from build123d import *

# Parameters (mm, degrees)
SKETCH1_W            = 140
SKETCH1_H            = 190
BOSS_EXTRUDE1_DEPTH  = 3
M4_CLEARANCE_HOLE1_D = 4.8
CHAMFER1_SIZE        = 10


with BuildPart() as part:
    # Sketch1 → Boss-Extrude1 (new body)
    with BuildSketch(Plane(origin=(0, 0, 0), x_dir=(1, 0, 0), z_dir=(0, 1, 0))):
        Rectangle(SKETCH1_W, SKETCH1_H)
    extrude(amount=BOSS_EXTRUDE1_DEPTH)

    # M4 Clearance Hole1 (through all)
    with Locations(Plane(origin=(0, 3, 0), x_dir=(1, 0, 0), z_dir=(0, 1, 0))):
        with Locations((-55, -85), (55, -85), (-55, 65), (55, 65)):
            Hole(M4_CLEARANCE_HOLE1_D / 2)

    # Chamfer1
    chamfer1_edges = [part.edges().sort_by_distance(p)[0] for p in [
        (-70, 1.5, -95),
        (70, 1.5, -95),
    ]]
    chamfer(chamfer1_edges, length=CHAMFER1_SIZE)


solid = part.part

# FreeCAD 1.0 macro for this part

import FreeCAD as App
import Part
import Sketcher

V = App.Vector


def edges_at(feature, points):
    """Names of the edges that pass closest to the given points."""
    edges = feature.Shape.Edges
    near = lambda p: min(range(len(edges)), key=lambda i: edges[i].distToShape(Part.Vertex(*p))[0])
    return sorted({f"Edge{near(p) + 1}" for p in points})

doc = App.newDocument("Part")
params = doc.addObject("Spreadsheet::Sheet", "Params")
for row, (alias, value) in enumerate([
    ("sketch1_width", "140 mm"),
    ("sketch1_height", "190 mm"),
    ("pad1_length", "3 mm"),
    ("sketch2_diameter", "4.8 mm"),
    ("hole_diameter", "4.8 mm"),
    ("chamfer_size", "10 mm"),
], start=1):
    params.set(f"A{row}", alias)
    params.set(f"B{row}", "=" + value)
    params.setAlias(f"B{row}", alias)

body = doc.addObject("PartDesign::Body", "Body")

# Sketch on XZ plane
sketch1 = doc.addObject("Sketcher::SketchObject", "Sketch")
body.addObject(sketch1)
sketch1.AttachmentSupport = (doc.XZ_Plane, [""])
sketch1.MapMode = "FlatFace"
sketch1.addGeometry(Part.LineSegment(V(-70, -95, 0), V(-70, 95, 0)), False)
sketch1.addGeometry(Part.LineSegment(V(-70, 95, 0), V(70, 95, 0)), False)
sketch1.addGeometry(Part.LineSegment(V(70, 95, 0), V(70, -95, 0)), False)
sketch1.addGeometry(Part.LineSegment(V(70, -95, 0), V(-70, -95, 0)), False)
sketch1.addConstraint(Sketcher.Constraint("Coincident", 0, 2, 1, 1))
sketch1.addConstraint(Sketcher.Constraint("Coincident", 1, 2, 2, 1))
sketch1.addConstraint(Sketcher.Constraint("Coincident", 2, 2, 3, 1))
sketch1.addConstraint(Sketcher.Constraint("Coincident", 3, 2, 0, 1))
sketch1.addConstraint(Sketcher.Constraint("Vertical", 0))
sketch1.addConstraint(Sketcher.Constraint("Horizontal", 1))
sketch1.addConstraint(Sketcher.Constraint("Vertical", 2))
sketch1.addConstraint(Sketcher.Constraint("Horizontal", 3))
sketch1.addConstraint(Sketcher.Constraint("Symmetric", 0, 2, 2, 2, -1, 1))
sketch1.addConstraint(Sketcher.Constraint("DistanceX", 1, 1, 1, 2, 140.0))
sketch1.addConstraint(Sketcher.Constraint("DistanceY", 0, 1, 0, 2, 190.0))
sketch1.setExpression("Constraints[9]", "Params.sketch1_width")
sketch1.setExpression("Constraints[10]", "Params.sketch1_height")
pad1 = doc.addObject("PartDesign::Pad", "Pad")
body.addObject(pad1)
pad1.Profile = sketch1
pad1.setExpression("Length", "Params.pad1_length")
pad1.Reversed = True

# Sketch on XZ plane
sketch2 = doc.addObject("Sketcher::SketchObject", "Sketch001")
body.addObject(sketch2)
sketch2.AttachmentSupport = (doc.XZ_Plane, [""])
sketch2.MapMode = "FlatFace"
sketch2.AttachmentOffset = App.Placement(V(0, 0, -3), App.Rotation())
sketch2.addGeometry(Part.Circle(V(-55, 85, 0), V(0, 0, 1), 2.4), False)
sketch2.addGeometry(Part.Circle(V(55, 85, 0), V(0, 0, 1), 2.4), False)
sketch2.addGeometry(Part.Circle(V(-55, -65, 0), V(0, 0, 1), 2.4), False)
sketch2.addGeometry(Part.Circle(V(55, -65, 0), V(0, 0, 1), 2.4), False)
sketch2.addConstraint(Sketcher.Constraint("Equal", 0, 1))
sketch2.addConstraint(Sketcher.Constraint("Equal", 1, 2))
sketch2.addConstraint(Sketcher.Constraint("Equal", 2, 3))
sketch2.addConstraint(Sketcher.Constraint("Symmetric", 0, 3, 1, 3, -2))
sketch2.addConstraint(Sketcher.Constraint("Symmetric", 2, 3, 3, 3, -2))
sketch2.addConstraint(Sketcher.Constraint("Vertical", 0, 3, 2, 3))
sketch2.addConstraint(Sketcher.Constraint("Diameter", 0, 4.8))
sketch2.addConstraint(Sketcher.Constraint("DistanceX", 0, 3, -1, 1, 55.0))
sketch2.addConstraint(Sketcher.Constraint("DistanceY", -1, 1, 0, 3, 85.0))
sketch2.addConstraint(Sketcher.Constraint("DistanceY", 2, 3, -1, 1, 65.0))
sketch2.setExpression("Constraints[6]", "Params.sketch2_diameter")
doc.recompute()
hole = doc.addObject("PartDesign::Hole", "Hole")
body.addObject(hole)
hole.Profile = sketch2
hole.ThreadType = "None"
hole.setExpression("Diameter", "Params.hole_diameter")
hole.DepthType = "ThroughAll"
hole.Reversed = True
doc.recompute()

chamfer = doc.addObject("PartDesign::Chamfer", "Chamfer")
body.addObject(chamfer)
chamfer.Base = (hole, edges_at(hole, [(-70, 1.5, -95), (70, 1.5, -95)]))
chamfer.setExpression("Size", "Params.chamfer_size")

doc.recompute()
